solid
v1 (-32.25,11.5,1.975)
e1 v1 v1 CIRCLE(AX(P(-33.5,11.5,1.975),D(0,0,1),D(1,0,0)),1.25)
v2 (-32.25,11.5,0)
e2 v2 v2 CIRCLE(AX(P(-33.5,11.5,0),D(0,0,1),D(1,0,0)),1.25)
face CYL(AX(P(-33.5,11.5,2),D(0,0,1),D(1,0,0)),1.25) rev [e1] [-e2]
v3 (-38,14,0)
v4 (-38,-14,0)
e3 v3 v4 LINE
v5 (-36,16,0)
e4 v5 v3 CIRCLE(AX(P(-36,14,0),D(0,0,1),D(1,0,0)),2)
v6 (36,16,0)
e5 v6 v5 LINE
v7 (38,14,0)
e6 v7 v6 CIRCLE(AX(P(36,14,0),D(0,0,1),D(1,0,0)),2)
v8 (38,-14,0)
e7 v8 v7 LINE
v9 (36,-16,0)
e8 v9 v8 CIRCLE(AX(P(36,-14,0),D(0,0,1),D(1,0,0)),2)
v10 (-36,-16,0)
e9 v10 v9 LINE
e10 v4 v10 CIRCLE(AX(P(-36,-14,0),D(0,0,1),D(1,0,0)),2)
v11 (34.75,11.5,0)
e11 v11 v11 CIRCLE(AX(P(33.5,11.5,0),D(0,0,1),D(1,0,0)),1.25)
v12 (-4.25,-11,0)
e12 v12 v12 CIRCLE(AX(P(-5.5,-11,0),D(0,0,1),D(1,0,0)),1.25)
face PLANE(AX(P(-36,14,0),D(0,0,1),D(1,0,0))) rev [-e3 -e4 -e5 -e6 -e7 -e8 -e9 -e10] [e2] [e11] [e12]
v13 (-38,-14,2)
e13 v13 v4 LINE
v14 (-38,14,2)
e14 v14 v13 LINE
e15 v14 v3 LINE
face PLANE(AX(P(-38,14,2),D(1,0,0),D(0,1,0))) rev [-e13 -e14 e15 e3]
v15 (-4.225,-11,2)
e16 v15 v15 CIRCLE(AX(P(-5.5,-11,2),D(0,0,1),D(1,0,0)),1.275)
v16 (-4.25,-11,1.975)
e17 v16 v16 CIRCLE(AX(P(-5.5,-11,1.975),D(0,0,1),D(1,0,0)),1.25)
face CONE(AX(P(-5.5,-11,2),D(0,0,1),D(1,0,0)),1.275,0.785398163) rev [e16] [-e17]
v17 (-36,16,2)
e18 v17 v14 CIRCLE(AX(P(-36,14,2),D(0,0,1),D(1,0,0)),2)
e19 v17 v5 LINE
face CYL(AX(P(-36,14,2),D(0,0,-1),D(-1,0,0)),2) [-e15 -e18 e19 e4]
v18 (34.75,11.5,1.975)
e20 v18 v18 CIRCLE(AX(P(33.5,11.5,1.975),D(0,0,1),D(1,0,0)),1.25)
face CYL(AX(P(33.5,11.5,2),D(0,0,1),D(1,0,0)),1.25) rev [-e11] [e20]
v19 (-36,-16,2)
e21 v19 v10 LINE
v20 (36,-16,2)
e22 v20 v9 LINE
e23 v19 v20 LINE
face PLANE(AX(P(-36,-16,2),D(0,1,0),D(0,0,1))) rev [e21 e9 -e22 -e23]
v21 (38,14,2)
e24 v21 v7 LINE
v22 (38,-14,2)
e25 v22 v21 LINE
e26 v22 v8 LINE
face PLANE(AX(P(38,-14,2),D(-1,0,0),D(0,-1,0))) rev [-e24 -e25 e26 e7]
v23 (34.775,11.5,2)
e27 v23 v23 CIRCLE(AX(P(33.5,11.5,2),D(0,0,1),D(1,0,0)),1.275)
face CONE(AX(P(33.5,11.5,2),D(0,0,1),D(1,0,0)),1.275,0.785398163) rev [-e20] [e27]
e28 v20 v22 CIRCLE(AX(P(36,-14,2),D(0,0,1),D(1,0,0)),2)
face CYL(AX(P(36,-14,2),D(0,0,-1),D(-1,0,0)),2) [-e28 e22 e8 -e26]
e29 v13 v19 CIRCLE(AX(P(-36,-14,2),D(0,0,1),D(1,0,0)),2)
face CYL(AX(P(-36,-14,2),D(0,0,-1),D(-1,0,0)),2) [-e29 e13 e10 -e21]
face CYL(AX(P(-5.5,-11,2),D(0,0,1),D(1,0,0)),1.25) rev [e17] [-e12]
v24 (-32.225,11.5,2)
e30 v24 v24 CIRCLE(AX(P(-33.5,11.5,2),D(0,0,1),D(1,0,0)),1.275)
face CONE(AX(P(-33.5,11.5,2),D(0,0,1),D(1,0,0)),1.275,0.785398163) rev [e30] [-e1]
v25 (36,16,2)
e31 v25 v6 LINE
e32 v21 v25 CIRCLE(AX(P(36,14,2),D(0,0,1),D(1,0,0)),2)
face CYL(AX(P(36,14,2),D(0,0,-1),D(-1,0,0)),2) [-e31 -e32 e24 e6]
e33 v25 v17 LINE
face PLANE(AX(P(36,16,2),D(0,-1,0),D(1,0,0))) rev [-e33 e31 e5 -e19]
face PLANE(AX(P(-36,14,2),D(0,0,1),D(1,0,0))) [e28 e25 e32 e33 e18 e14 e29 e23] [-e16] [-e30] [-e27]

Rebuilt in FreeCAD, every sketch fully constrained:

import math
import FreeCAD as App
import Part
import Sketcher

V = App.Vector

doc = App.newDocument("Part")
body = doc.addObject("PartDesign::Body", "Body")

# Sketch on XY plane
sketch1 = doc.addObject("Sketcher::SketchObject", "Sketch")
body.addObject(sketch1)
sketch1.AttachmentSupport = (doc.XY_Plane, [""])
sketch1.MapMode = "FlatFace"
sketch1.addGeometry([
    Part.LineSegment(V(-38, 14, 0), V(-38, -14, 0)),  # 0
    Part.ArcOfCircle(Part.Circle(V(-36, -14, 0), V(0, 0, 1), 2), math.radians(-180), math.radians(-90)),  # 1
    Part.LineSegment(V(-36, -16, 0), V(36, -16, 0)),  # 2
    Part.ArcOfCircle(Part.Circle(V(36, -14, 0), V(0, 0, 1), 2), math.radians(-90), math.radians(0)),  # 3
    Part.LineSegment(V(38, -14, 0), V(38, 14, 0)),  # 4
    Part.ArcOfCircle(Part.Circle(V(36, 14, 0), V(0, 0, 1), 2), math.radians(0), math.radians(90)),  # 5
    Part.LineSegment(V(36, 16, 0), V(-36, 16, 0)),  # 6
    Part.ArcOfCircle(Part.Circle(V(-36, 14, 0), V(0, 0, 1), 2), math.radians(90), math.radians(180)),  # 7
], False)
sketch1.addConstraint([
    Sketcher.Constraint("Tangent", 0, 2, 1, 1),
    Sketcher.Constraint("Tangent", 1, 2, 2, 1),
    Sketcher.Constraint("Tangent", 2, 2, 3, 1),
    Sketcher.Constraint("Tangent", 3, 2, 4, 1),
    Sketcher.Constraint("Tangent", 4, 2, 5, 1),
    Sketcher.Constraint("Tangent", 5, 2, 6, 1),
    Sketcher.Constraint("Tangent", 6, 2, 7, 1),
    Sketcher.Constraint("Tangent", 7, 2, 0, 1),
    Sketcher.Constraint("Vertical", 0),
    Sketcher.Constraint("Horizontal", 2),
    Sketcher.Constraint("Vertical", 4),
    Sketcher.Constraint("Horizontal", 6),
    Sketcher.Constraint("Equal", 1, 3),
    Sketcher.Constraint("Equal", 3, 5),
    Sketcher.Constraint("Equal", 5, 7),
    Sketcher.Constraint("Symmetric", 1, 3, 5, 3, -1, 1),
    Sketcher.Constraint("Radius", 1, 2.0),
    Sketcher.Constraint("DistanceX", 2, 1, 2, 2, 72.0),
    Sketcher.Constraint("DistanceY", 0, 2, 0, 1, 28.0),
])
pad1 = doc.addObject("PartDesign::Pad", "Pad")
body.addObject(pad1)
pad1.Profile = sketch1
pad1.Length = 2

# Sketch on XY plane
sketch2 = doc.addObject("Sketcher::SketchObject", "Sketch001")
body.addObject(sketch2)
sketch2.AttachmentSupport = (doc.XY_Plane, [""])
sketch2.MapMode = "FlatFace"
sketch2.AttachmentOffset = App.Placement(V(0, 0, 2), App.Rotation())
sketch2.addGeometry([
    Part.Circle(V(-33.5, 11.5, 0), V(0, 0, 1), 1.2),
    Part.Circle(V(-5.5, -11, 0), V(0, 0, 1), 1.2),
    Part.Circle(V(33.5, 11.5, 0), V(0, 0, 1), 1.2),
], False)
sketch2.addConstraint([
    Sketcher.Constraint("Equal", 0, 1),
    Sketcher.Constraint("Equal", 1, 2),
    Sketcher.Constraint("Symmetric", 0, 3, 2, 3, -2),
    Sketcher.Constraint("Diameter", 0, 2.5),
    Sketcher.Constraint("DistanceY", 1, 3, -1, 1, 11.0),
    Sketcher.Constraint("DistanceX", 0, 3, 1, 3, 28.0),
    Sketcher.Constraint("DistanceX", 1, 3, 2, 3, 39.0),
    Sketcher.Constraint("DistanceY", -1, 1, 0, 3, 11.5),
])
doc.recompute()
hole = doc.addObject("PartDesign::Hole", "Hole")
body.addObject(hole)
hole.Profile = sketch2
hole.ThreadType = "None"
hole.Diameter = 2.5
hole.DepthType = "ThroughAll"
hole.HoleCutType = "Countersink"
hole.HoleCutDiameter = 2.55
hole.HoleCutCountersinkAngle = 90

doc.recompute()
